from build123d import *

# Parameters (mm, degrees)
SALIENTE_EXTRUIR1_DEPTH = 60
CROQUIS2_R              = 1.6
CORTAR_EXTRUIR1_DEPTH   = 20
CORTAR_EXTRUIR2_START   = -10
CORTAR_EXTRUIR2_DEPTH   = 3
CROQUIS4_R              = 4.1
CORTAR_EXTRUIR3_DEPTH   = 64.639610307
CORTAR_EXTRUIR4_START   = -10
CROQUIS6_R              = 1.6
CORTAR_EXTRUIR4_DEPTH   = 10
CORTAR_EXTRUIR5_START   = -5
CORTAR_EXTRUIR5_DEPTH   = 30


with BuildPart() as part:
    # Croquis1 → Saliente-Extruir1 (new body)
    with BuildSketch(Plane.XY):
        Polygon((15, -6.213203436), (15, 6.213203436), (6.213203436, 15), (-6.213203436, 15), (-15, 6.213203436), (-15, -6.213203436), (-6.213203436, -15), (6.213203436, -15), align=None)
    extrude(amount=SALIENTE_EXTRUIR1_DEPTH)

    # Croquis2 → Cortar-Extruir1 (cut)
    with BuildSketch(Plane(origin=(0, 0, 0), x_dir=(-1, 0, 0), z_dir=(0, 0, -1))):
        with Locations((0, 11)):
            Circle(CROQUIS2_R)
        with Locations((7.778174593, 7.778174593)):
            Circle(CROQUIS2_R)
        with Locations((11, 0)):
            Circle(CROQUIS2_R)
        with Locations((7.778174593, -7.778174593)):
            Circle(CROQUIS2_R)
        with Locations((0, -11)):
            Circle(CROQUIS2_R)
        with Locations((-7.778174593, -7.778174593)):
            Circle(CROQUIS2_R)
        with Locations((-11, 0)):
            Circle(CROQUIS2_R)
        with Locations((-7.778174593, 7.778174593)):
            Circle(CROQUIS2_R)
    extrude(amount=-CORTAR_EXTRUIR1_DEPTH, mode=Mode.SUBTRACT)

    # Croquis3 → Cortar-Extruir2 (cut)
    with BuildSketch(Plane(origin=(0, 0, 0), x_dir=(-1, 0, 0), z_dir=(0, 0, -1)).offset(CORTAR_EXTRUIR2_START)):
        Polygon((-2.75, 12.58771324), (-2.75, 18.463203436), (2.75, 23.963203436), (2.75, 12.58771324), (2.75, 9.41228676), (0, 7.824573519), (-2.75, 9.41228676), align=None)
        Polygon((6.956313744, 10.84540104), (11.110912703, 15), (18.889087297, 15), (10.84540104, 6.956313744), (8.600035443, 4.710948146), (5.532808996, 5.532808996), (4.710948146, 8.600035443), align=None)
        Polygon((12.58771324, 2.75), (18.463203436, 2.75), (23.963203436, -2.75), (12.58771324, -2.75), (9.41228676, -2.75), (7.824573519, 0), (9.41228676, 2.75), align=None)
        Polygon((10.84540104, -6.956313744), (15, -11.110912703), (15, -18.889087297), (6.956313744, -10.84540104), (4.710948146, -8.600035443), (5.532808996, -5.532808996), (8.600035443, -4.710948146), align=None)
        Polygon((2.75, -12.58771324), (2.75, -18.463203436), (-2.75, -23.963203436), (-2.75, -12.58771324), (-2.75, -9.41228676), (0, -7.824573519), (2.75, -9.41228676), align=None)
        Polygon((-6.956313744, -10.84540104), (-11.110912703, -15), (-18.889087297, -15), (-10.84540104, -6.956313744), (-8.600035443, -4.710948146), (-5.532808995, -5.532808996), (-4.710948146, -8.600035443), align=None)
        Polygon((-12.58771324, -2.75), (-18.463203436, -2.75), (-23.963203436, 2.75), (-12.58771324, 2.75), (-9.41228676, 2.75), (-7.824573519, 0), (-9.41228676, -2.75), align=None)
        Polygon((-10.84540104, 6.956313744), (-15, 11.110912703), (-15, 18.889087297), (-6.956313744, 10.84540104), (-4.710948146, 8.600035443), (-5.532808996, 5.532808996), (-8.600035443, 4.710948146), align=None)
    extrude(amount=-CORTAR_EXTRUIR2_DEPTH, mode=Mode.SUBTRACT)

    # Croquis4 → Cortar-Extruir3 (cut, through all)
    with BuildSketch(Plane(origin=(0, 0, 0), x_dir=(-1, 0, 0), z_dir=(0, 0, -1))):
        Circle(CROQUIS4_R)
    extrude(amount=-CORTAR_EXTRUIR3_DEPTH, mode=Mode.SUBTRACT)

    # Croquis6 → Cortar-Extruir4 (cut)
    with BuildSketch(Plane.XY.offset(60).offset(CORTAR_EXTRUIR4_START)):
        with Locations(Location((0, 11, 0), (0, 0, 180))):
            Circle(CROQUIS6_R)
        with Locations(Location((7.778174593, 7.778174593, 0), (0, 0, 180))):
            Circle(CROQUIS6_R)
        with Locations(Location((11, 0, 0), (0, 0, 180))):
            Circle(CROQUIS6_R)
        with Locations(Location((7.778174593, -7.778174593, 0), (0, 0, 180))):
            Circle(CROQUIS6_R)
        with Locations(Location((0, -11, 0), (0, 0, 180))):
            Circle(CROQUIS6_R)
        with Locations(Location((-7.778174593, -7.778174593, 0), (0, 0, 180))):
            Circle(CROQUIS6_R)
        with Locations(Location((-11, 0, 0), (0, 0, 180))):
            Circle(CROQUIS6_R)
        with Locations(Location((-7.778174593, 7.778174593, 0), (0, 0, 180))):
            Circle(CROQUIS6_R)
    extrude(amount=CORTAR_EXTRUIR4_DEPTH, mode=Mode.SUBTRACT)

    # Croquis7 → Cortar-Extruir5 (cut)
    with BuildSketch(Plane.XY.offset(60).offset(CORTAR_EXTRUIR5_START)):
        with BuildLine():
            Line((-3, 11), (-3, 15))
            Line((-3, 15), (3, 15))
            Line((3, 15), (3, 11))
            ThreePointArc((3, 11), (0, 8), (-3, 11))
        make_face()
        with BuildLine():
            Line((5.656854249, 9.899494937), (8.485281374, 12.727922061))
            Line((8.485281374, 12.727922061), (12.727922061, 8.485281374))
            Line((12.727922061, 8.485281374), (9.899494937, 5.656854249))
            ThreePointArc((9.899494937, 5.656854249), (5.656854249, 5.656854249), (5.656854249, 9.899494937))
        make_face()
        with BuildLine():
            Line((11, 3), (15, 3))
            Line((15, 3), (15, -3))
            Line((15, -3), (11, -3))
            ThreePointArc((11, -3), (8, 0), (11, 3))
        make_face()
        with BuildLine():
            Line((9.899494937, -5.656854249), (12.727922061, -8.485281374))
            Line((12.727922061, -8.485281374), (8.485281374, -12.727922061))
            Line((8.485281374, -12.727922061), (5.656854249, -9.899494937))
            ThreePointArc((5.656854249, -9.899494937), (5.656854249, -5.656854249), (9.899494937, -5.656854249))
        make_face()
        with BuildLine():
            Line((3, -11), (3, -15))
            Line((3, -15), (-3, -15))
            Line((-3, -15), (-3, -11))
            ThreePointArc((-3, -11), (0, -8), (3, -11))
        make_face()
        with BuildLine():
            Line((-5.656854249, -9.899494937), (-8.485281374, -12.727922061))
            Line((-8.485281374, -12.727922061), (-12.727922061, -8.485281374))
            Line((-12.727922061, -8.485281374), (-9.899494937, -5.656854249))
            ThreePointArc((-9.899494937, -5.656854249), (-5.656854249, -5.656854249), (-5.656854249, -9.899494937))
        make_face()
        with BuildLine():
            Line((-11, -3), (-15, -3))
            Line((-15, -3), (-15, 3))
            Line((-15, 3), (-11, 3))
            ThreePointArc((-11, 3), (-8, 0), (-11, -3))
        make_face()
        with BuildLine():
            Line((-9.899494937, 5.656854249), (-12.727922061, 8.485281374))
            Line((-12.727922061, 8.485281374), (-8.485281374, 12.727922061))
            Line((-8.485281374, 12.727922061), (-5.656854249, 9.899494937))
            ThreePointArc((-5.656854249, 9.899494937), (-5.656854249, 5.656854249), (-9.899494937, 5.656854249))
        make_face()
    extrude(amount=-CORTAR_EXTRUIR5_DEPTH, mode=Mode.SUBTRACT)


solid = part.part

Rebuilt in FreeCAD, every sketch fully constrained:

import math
import FreeCAD as App
import Part
import Sketcher
Q = App.Units.Quantity

doc = App.newDocument("Part")
body = doc.addObject("PartDesign::Body", "Body")

sketch1 = doc.addObject("Sketcher::SketchObject", "Sketch")
body.addObject(sketch1)
sketch1.AttachmentSupport = (doc.XY_Plane, [""])
sketch1.MapMode = "FlatFace"
sketch1.addGeometry([
    Part.LineSegment(App.Vector(15, -6.213203, 0), App.Vector(15, 6.213203, 0)),
    Part.LineSegment(App.Vector(15, 6.213203, 0), App.Vector(6.213203, 15, 0)),
    Part.LineSegment(App.Vector(6.213203, 15, 0), App.Vector(-6.213203, 15, 0)),
    Part.LineSegment(App.Vector(-6.213203, 15, 0), App.Vector(-15, 6.213203, 0)),
    Part.LineSegment(App.Vector(-15, 6.213203, 0), App.Vector(-15, -6.213203, 0)),
    Part.LineSegment(App.Vector(-15, -6.213203, 0), App.Vector(-6.213203, -15, 0)),
    Part.LineSegment(App.Vector(-6.213203, -15, 0), App.Vector(6.213203, -15, 0)),
    Part.LineSegment(App.Vector(6.213203, -15, 0), App.Vector(15, -6.213203, 0)),
], False)
sketch1.addConstraint([
    Sketcher.Constraint("Coincident", 0, 2, 1, 1),
    Sketcher.Constraint("Coincident", 1, 2, 2, 1),
    Sketcher.Constraint("Coincident", 2, 2, 3, 1),
    Sketcher.Constraint("Coincident", 3, 2, 4, 1),
    Sketcher.Constraint("Coincident", 4, 2, 5, 1),
    Sketcher.Constraint("Coincident", 5, 2, 6, 1),
    Sketcher.Constraint("Coincident", 6, 2, 7, 1),
    Sketcher.Constraint("Coincident", 7, 2, 0, 1),
    Sketcher.Constraint("Vertical", 0),
    Sketcher.Constraint("Horizontal", 2),
    Sketcher.Constraint("Vertical", 4),
    Sketcher.Constraint("Horizontal", 6),
    Sketcher.Constraint("Symmetric", 0, 2, 4, 2, -1, 1),
    Sketcher.Constraint("Symmetric", 1, 2, 5, 2, -1, 1),
    Sketcher.Constraint("Perpendicular", 1, 3),
    Sketcher.Constraint("Perpendicular", 5, 7),
    Sketcher.Constraint("Horizontal", 0, 2, 3, 2),
    Sketcher.Constraint("Horizontal", 4, 2, 7, 2),
    Sketcher.Constraint("Vertical", 2, 2, 5, 2),
    Sketcher.Constraint("Equal", 6, 0),
    Sketcher.Constraint("DistanceX", -1, 1, 0, 2, Q("15 mm")),
    Sketcher.Constraint("DistanceX", 2, 2, 2, 1, Q("12.426407 mm")),
])
pad1 = doc.addObject("PartDesign::Pad", "Pad")
body.addObject(pad1)
pad1.Profile = sketch1
pad1.Length = 60

sketch2 = doc.addObject("Sketcher::SketchObject", "Sketch001")
body.addObject(sketch2)
sketch2.AttachmentSupport = (doc.XY_Plane, [""])
sketch2.MapMode = "FlatFace"
sketch2.addGeometry([
    Part.Circle(App.Vector(0, 11, 0), App.Vector(0, 0, 1), 1.6),
    Part.Circle(App.Vector(-7.778175, 7.778175, 0), App.Vector(0, 0, 1), 1.6),
    Part.Circle(App.Vector(-11, 0, 0), App.Vector(0, 0, 1), 1.6),
    Part.Circle(App.Vector(-7.778175, -7.778175, 0), App.Vector(0, 0, 1), 1.6),
    Part.Circle(App.Vector(0, -11, 0), App.Vector(0, 0, 1), 1.6),
    Part.Circle(App.Vector(7.778175, -7.778175, 0), App.Vector(0, 0, 1), 1.6),
    Part.Circle(App.Vector(11, 0, 0), App.Vector(0, 0, 1), 1.6),
    Part.Circle(App.Vector(7.778175, 7.778175, 0), App.Vector(0, 0, 1), 1.6),
], False)
sketch2.addConstraint([
    Sketcher.Constraint("Equal", 0, 1),
    Sketcher.Constraint("Equal", 1, 2),
    Sketcher.Constraint("Equal", 2, 3),
    Sketcher.Constraint("Equal", 3, 4),
    Sketcher.Constraint("Equal", 4, 5),
    Sketcher.Constraint("Equal", 5, 6),
    Sketcher.Constraint("Equal", 6, 7),
    Sketcher.Constraint("Symmetric", 0, 3, 4, 3, -1, 1),
    Sketcher.Constraint("Symmetric", 1, 3, 5, 3, -1, 1),
    Sketcher.Constraint("Symmetric", 2, 3, 6, 3, -1, 1),
    Sketcher.Constraint("Symmetric", 3, 3, 7, 3, -1, 1),
    Sketcher.Constraint("Symmetric", 3, 3, 5, 3, -2),
    Sketcher.Constraint("PointOnObject", 0, 3, -2),
    Sketcher.Constraint("PointOnObject", 2, 3, -1),
    Sketcher.Constraint("Diameter", 0, Q("3.2 mm")),
    Sketcher.Constraint("DistanceY", -1, 1, 0, 3, Q("11 mm")),
    Sketcher.Constraint("DistanceX", 2, 3, -1, 1, Q("11 mm")),
    Sketcher.Constraint("DistanceY", 3, 3, 1, 3, Q("15.556349 mm")),
    Sketcher.Constraint("DistanceX", 3, 3, 5, 3, Q("15.556349 mm")),
])
pocket1 = doc.addObject("PartDesign::Pocket", "Pocket")
body.addObject(pocket1)
pocket1.Profile = sketch2
pocket1.Length = 20
pocket1.Reversed = True

sketch3 = doc.addObject("Sketcher::SketchObject", "Sketch002")
body.addObject(sketch3)
sketch3.AttachmentSupport = (doc.XY_Plane, [""])
sketch3.MapMode = "FlatFace"
sketch3.AttachmentOffset = App.Placement(App.Vector(0, 0, 10), App.Rotation())
sketch3.addGeometry([
    Part.LineSegment(App.Vector(2.75, 18.463203, 0), App.Vector(2.75, 9.412287, 0)),
    Part.LineSegment(App.Vector(2.75, 9.412287, 0), App.Vector(0, 7.824574, 0)),
    Part.LineSegment(App.Vector(0, 7.824574, 0), App.Vector(-2.75, 9.412287, 0)),
    Part.LineSegment(App.Vector(-2.75, 9.412287, 0), App.Vector(-2.75, 23.963203, 0)),
    Part.LineSegment(App.Vector(-2.75, 23.963203, 0), App.Vector(2.75, 18.463203, 0)),
    Part.LineSegment(App.Vector(-11.110913, 15, 0), App.Vector(-6.956314, 10.845401, 0)),
    Part.LineSegment(App.Vector(-6.956314, 10.845401, 0), App.Vector(-4.710948, 8.600035, 0)),
    Part.LineSegment(App.Vector(-4.710948, 8.600035, 0), App.Vector(-5.532809, 5.532809, 0)),
    Part.LineSegment(App.Vector(-5.532809, 5.532809, 0), App.Vector(-8.600035, 4.710948, 0)),
    Part.LineSegment(App.Vector(-8.600035, 4.710948, 0), App.Vector(-10.845401, 6.956314, 0)),
    Part.LineSegment(App.Vector(-10.845401, 6.956314, 0), App.Vector(-18.889087, 15, 0)),
    Part.LineSegment(App.Vector(-18.889087, 15, 0), App.Vector(-11.110913, 15, 0)),
    Part.LineSegment(App.Vector(-18.463203, 2.75, 0), App.Vector(-9.412287, 2.75, 0)),
    Part.LineSegment(App.Vector(-9.412287, 2.75, 0), App.Vector(-7.824574, 0, 0)),
    Part.LineSegment(App.Vector(-7.824574, 0, 0), App.Vector(-9.412287, -2.75, 0)),
    Part.LineSegment(App.Vector(-9.412287, -2.75, 0), App.Vector(-23.963203, -2.75, 0)),
    Part.LineSegment(App.Vector(-23.963203, -2.75, 0), App.Vector(-18.463203, 2.75, 0)),
    Part.LineSegment(App.Vector(-15, -11.110913, 0), App.Vector(-10.845401, -6.956314, 0)),
    Part.LineSegment(App.Vector(-10.845401, -6.956314, 0), App.Vector(-8.600035, -4.710948, 0)),
    Part.LineSegment(App.Vector(-8.600035, -4.710948, 0), App.Vector(-5.532809, -5.532809, 0)),
    Part.LineSegment(App.Vector(-5.532809, -5.532809, 0), App.Vector(-4.710948, -8.600035, 0)),
    Part.LineSegment(App.Vector(-4.710948, -8.600035, 0), App.Vector(-6.956314, -10.845401, 0)),
    Part.LineSegment(App.Vector(-6.956314, -10.845401, 0), App.Vector(-15, -18.889087, 0)),
    Part.LineSegment(App.Vector(-15, -18.889087, 0), App.Vector(-15, -11.110913, 0)),
    Part.LineSegment(App.Vector(-2.75, -18.463203, 0), App.Vector(-2.75, -9.412287, 0)),
    Part.LineSegment(App.Vector(-2.75, -9.412287, 0), App.Vector(0, -7.824574, 0)),
    Part.LineSegment(App.Vector(0, -7.824574, 0), App.Vector(2.75, -9.412287, 0)),
    Part.LineSegment(App.Vector(2.75, -9.412287, 0), App.Vector(2.75, -23.963203, 0)),
    Part.LineSegment(App.Vector(2.75, -23.963203, 0), App.Vector(-2.75, -18.463203, 0)),
    Part.LineSegment(App.Vector(11.110913, -15, 0), App.Vector(6.956314, -10.845401, 0)),
    Part.LineSegment(App.Vector(6.956314, -10.845401, 0), App.Vector(4.710948, -8.600035, 0)),
    Part.LineSegment(App.Vector(4.710948, -8.600035, 0), App.Vector(5.532809, -5.532809, 0)),
    Part.LineSegment(App.Vector(5.532809, -5.532809, 0), App.Vector(8.600035, -4.710948, 0)),
    Part.LineSegment(App.Vector(8.600035, -4.710948, 0), App.Vector(10.845401, -6.956314, 0)),
    Part.LineSegment(App.Vector(10.845401, -6.956314, 0), App.Vector(18.889087, -15, 0)),
    Part.LineSegment(App.Vector(18.889087, -15, 0), App.Vector(11.110913, -15, 0)),
    Part.LineSegment(App.Vector(18.463203, -2.75, 0), App.Vector(9.412287, -2.75, 0)),
    Part.LineSegment(App.Vector(9.412287, -2.75, 0), App.Vector(7.824574, 0, 0)),
    Part.LineSegment(App.Vector(7.824574, 0, 0), App.Vector(9.412287, 2.75, 0)),
    Part.LineSegment(App.Vector(9.412287, 2.75, 0), App.Vector(23.963203, 2.75, 0)),
    Part.LineSegment(App.Vector(23.963203, 2.75, 0), App.Vector(18.463203, -2.75, 0)),
    Part.LineSegment(App.Vector(15, 11.110913, 0), App.Vector(10.845401, 6.956314, 0)),
    Part.LineSegment(App.Vector(10.845401, 6.956314, 0), App.Vector(8.600035, 4.710948, 0)),
    Part.LineSegment(App.Vector(8.600035, 4.710948, 0), App.Vector(5.532809, 5.532809, 0)),
    Part.LineSegment(App.Vector(5.532809, 5.532809, 0), App.Vector(4.710948, 8.600035, 0)),
    Part.LineSegment(App.Vector(4.710948, 8.600035, 0), App.Vector(6.956314, 10.845401, 0)),
    Part.LineSegment(App.Vector(6.956314, 10.845401, 0), App.Vector(15, 18.889087, 0)),
    Part.LineSegment(App.Vector(15, 18.889087, 0), App.Vector(15, 11.110913, 0)),
], False)
sketch3.addConstraint([
    Sketcher.Constraint("Coincident", 0, 2, 1, 1),
    Sketcher.Constraint("Coincident", 1, 2, 2, 1),
    Sketcher.Constraint("Coincident", 2, 2, 3, 1),
    Sketcher.Constraint("Coincident", 3, 2, 4, 1),
    Sketcher.Constraint("Coincident", 4, 2, 0, 1),
    Sketcher.Constraint("Coincident", 5, 2, 6, 1),
    Sketcher.Constraint("Coincident", 6, 2, 7, 1),
    Sketcher.Constraint("Coincident", 7, 2, 8, 1),
    Sketcher.Constraint("Coincident", 8, 2, 9, 1),
    Sketcher.Constraint("Coincident", 9, 2, 10, 1),
    Sketcher.Constraint("Coincident", 10, 2, 11, 1),
    Sketcher.Constraint("Coincident", 11, 2, 5, 1),
    Sketcher.Constraint("Coincident", 12, 2, 13, 1),
    Sketcher.Constraint("Coincident", 13, 2, 14, 1),
    Sketcher.Constraint("Coincident", 14, 2, 15, 1),
    Sketcher.Constraint("Coincident", 15, 2, 16, 1),
    Sketcher.Constraint("Coincident", 16, 2, 12, 1),
    Sketcher.Constraint("Coincident", 17, 2, 18, 1),
    Sketcher.Constraint("Coincident", 18, 2, 19, 1),
    Sketcher.Constraint("Coincident", 19, 2, 20, 1),
    Sketcher.Constraint("Coincident", 20, 2, 21, 1),
    Sketcher.Constraint("Coincident", 21, 2, 22, 1),
    Sketcher.Constraint("Coincident", 22, 2, 23, 1),
    Sketcher.Constraint("Coincident", 23, 2, 17, 1),
    Sketcher.Constraint("Coincident", 24, 2, 25, 1),
    Sketcher.Constraint("Coincident", 25, 2, 26, 1),
    Sketcher.Constraint("Coincident", 26, 2, 27, 1),
    Sketcher.Constraint("Coincident", 27, 2, 28, 1),
    Sketcher.Constraint("Coincident", 28, 2, 24, 1),
    Sketcher.Constraint("Coincident", 29, 2, 30, 1),
    Sketcher.Constraint("Coincident", 30, 2, 31, 1),
    Sketcher.Constraint("Coincident", 31, 2, 32, 1),
    Sketcher.Constraint("Coincident", 32, 2, 33, 1),
    Sketcher.Constraint("Coincident", 33, 2, 34, 1),
    Sketcher.Constraint("Coincident", 34, 2, 35, 1),
    Sketcher.Constraint("Coincident", 35, 2, 29, 1),
    Sketcher.Constraint("Coincident", 36, 2, 37, 1),
    Sketcher.Constraint("Coincident", 37, 2, 38, 1),
    Sketcher.Constraint("Coincident", 38, 2, 39, 1),
    Sketcher.Constraint("Coincident", 39, 2, 40, 1),
    Sketcher.Constraint("Coincident", 40, 2, 36, 1),
    Sketcher.Constraint("Coincident", 41, 2, 42, 1),
    Sketcher.Constraint("Coincident", 42, 2, 43, 1),
    Sketcher.Constraint("Coincident", 43, 2, 44, 1),
    Sketcher.Constraint("Coincident", 44, 2, 45, 1),
    Sketcher.Constraint("Coincident", 45, 2, 46, 1),
    Sketcher.Constraint("Coincident", 46, 2, 47, 1),
    Sketcher.Constraint("Coincident", 47, 2, 41, 1),
    Sketcher.Constraint("Vertical", 0),
    Sketcher.Constraint("Vertical", 3),
    Sketcher.Constraint("Horizontal", 11),
    Sketcher.Constraint("Horizontal", 12),
    Sketcher.Constraint("Horizontal", 15),
    Sketcher.Constraint("Vertical", 23),
    Sketcher.Constraint("Vertical", 24),
    Sketcher.Constraint("Vertical", 27),
    Sketcher.Constraint("Horizontal", 35),
    Sketcher.Constraint("Horizontal", 36),
    Sketcher.Constraint("Horizontal", 39),
    Sketcher.Constraint("Vertical", 47),
    Sketcher.Constraint("Symmetric", 0, 2, 24, 2, -1, 1),
    Sketcher.Constraint("Symmetric", 1, 2, 25, 2, -1, 1),
    Sketcher.Constraint("Symmetric", 2, 2, 26, 2, -1, 1),
    Sketcher.Constraint("Symmetric", 5, 2, 29, 2, -1, 1),
    Sketcher.Constraint("Symmetric", 6, 2, 30, 2, -1, 1),
    Sketcher.Constraint("Symmetric", 7, 2, 31, 2, -1, 1),
    Sketcher.Constraint("Symmetric", 8, 2, 32, 2, -1, 1),
    Sketcher.Constraint("Symmetric", 9, 2, 33, 2, -1, 1),
    Sketcher.Constraint("Symmetric", 10, 2, 34, 2, -1, 1),
    Sketcher.Constraint("Symmetric", 12, 2, 36, 2, -1, 1),
    Sketcher.Constraint("Symmetric", 13, 2, 37, 2, -1, 1),
    Sketcher.Constraint("Symmetric", 14, 2, 38, 2, -1, 1),
    Sketcher.Constraint("Symmetric", 17, 2, 41, 2, -1, 1),
    Sketcher.Constraint("Symmetric", 18, 2, 42, 2, -1, 1),
    Sketcher.Constraint("Symmetric", 19, 2, 43, 2, -1, 1),
    Sketcher.Constraint("Symmetric", 20, 2, 44, 2, -1, 1),
    Sketcher.Constraint("Symmetric", 21, 2, 45, 2, -1, 1),
    Sketcher.Constraint("Symmetric", 22, 2, 46, 2, -1, 1),
    Sketcher.Constraint("Symmetric", 0, 2, 2, 2, -2),
    Sketcher.Constraint("Symmetric", 21, 2, 29, 2, -2),
    Sketcher.Constraint("Symmetric", 20, 2, 30, 2, -2),
    Sketcher.Constraint("Symmetric", 19, 2, 31, 2, -2),
    Sketcher.Constraint("Symmetric", 18, 2, 32, 2, -2),
    Sketcher.Constraint("Symmetric", 17, 2, 33, 2, -2),
    Sketcher.Constraint("Symmetric", 14, 2, 36, 2, -2),
    Sketcher.Constraint("PointOnObject", 1, 2, -2),
    Sketcher.Constraint("PointOnObject", 13, 2, -1),
    Sketcher.Constraint("Parallel", 4, 5),
    Sketcher.Constraint("Parallel", 5, 6),
    Sketcher.Constraint("Parallel", 6, 9),
    Sketcher.Constraint("Parallel", 9, 10),
    Sketcher.Constraint("Perpendicular", 1, 13),
    Sketcher.Constraint("Perpendicular", 10, 16),
    Sketcher.Constraint("Parallel", 16, 17),
    Sketcher.Constraint("Parallel", 17, 18),
    Sketcher.Constraint("Perpendicular", 7, 19),
    Sketcher.Constraint("Parallel", 21, 22),
    Sketcher.Constraint("Perpendicular", 22, 28),
    Sketcher.Constraint("Parallel", 28, 29),
    Sketcher.Constraint("Perpendicular", 34, 40),
    Sketcher.Constraint("Parallel", 40, 41),
    Sketcher.Constraint("Equal", 12, 36),
    Sketcher.Constraint("Equal", 36, 0),
    Sketcher.Constraint("Equal", 39, 3),
    Sketcher.Constraint("Equal", 0, 24),
    Sketcher.Constraint("Equal", 2, 6),
    Sketcher.Constraint("Equal", 6, 7),
    Sketcher.Constraint("Equal", 7, 8),
    Sketcher.Constraint("Equal", 8, 9),
    Sketcher.Constraint("Equal", 5, 17),
    Sketcher.Constraint("Angle", 1, Q("-150 deg")),
    Sketcher.Constraint("Angle", 7, Q("-105 deg")),
    Sketcher.Constraint("DistanceY", -1, 1, 10, 2, Q("15 mm")),
    Sketcher.Constraint("DistanceX", 22, 2, -1, 1, Q("15 mm")),
    Sketcher.Constraint("DistanceX", 2, 2, 0, 2, Q("5.5 mm")),
    Sketcher.Constraint("DistanceY", -1, 1, 5, 2, Q("10.845401 mm")),
    Sketcher.Constraint("DistanceY", 0, 2, 46, 2, Q("9.476801 mm")),
    Sketcher.Constraint("DistanceX", 12, 1, 12, 2, Q("9.050917 mm")),
    Sketcher.Constraint("DistanceX", 12, 2, 8, 2, Q("0.812251 mm")),
])
pocket2 = doc.addObject("PartDesign::Pocket", "Pocket001")
body.addObject(pocket2)
pocket2.Profile = sketch3
pocket2.Length = 3
pocket2.Reversed = True

sketch4 = doc.addObject("Sketcher::SketchObject", "Sketch003")
body.addObject(sketch4)
sketch4.AttachmentSupport = (doc.XY_Plane, [""])
sketch4.MapMode = "FlatFace"
sketch4.addGeometry(Part.Circle(App.Vector(0, 0, 0), App.Vector(0, 0, 1), 4.1), False)
sketch4.addConstraint([
    Sketcher.Constraint("Coincident", 0, 3, -1, 1),
    Sketcher.Constraint("Diameter", 0, Q("8.2 mm")),
])
pocket3 = doc.addObject("PartDesign::Pocket", "Pocket002")
body.addObject(pocket3)
pocket3.Profile = sketch4
pocket3.Type = "ThroughAll"
pocket3.Reversed = True

sketch5 = doc.addObject("Sketcher::SketchObject", "Sketch004")
body.addObject(sketch5)
sketch5.AttachmentSupport = (doc.XY_Plane, [""])
sketch5.MapMode = "FlatFace"
sketch5.AttachmentOffset = App.Placement(App.Vector(0, 0, 50), App.Rotation())
sketch5.addGeometry([
    Part.Circle(App.Vector(0, 11, 0), App.Vector(0, 0, 1), 1.6),
    Part.Circle(App.Vector(7.778175, 7.778175, 0), App.Vector(0, 0, 1), 1.6),
    Part.Circle(App.Vector(11, 0, 0), App.Vector(0, 0, 1), 1.6),
    Part.Circle(App.Vector(7.778175, -7.778175, 0), App.Vector(0, 0, 1), 1.6),
    Part.Circle(App.Vector(0, -11, 0), App.Vector(0, 0, 1), 1.6),
    Part.Circle(App.Vector(-7.778175, -7.778175, 0), App.Vector(0, 0, 1), 1.6),
    Part.Circle(App.Vector(-11, 0, 0), App.Vector(0, 0, 1), 1.6),
    Part.Circle(App.Vector(-7.778175, 7.778175, 0), App.Vector(0, 0, 1), 1.6),
], False)
sketch5.addConstraint([
    Sketcher.Constraint("Equal", 0, 1),
    Sketcher.Constraint("Equal", 1, 2),
    Sketcher.Constraint("Equal", 2, 3),
    Sketcher.Constraint("Equal", 3, 4),
    Sketcher.Constraint("Equal", 4, 5),
    Sketcher.Constraint("Equal", 5, 6),
    Sketcher.Constraint("Equal", 6, 7),
    Sketcher.Constraint("Symmetric", 0, 3, 4, 3, -1, 1),
    Sketcher.Constraint("Symmetric", 1, 3, 5, 3, -1, 1),
    Sketcher.Constraint("Symmetric", 2, 3, 6, 3, -1, 1),
    Sketcher.Constraint("Symmetric", 3, 3, 7, 3, -1, 1),
    Sketcher.Constraint("Symmetric", 3, 3, 5, 3, -2),
    Sketcher.Constraint("PointOnObject", 0, 3, -2),
    Sketcher.Constraint("PointOnObject", 2, 3, -1),
    Sketcher.Constraint("Diameter", 0, Q("3.2 mm")),
    Sketcher.Constraint("DistanceY", -1, 1, 0, 3, Q("11 mm")),
    Sketcher.Constraint("DistanceX", -1, 1, 2, 3, Q("11 mm")),
    Sketcher.Constraint("DistanceY", 3, 3, 1, 3, Q("15.556349 mm")),
    Sketcher.Constraint("DistanceX", 5, 3, 3, 3, Q("15.556349 mm")),
])
pocket4 = doc.addObject("PartDesign::Pocket", "Pocket003")
body.addObject(pocket4)
pocket4.Profile = sketch5
pocket4.Length = 10
pocket4.Reversed = True

sketch6 = doc.addObject("Sketcher::SketchObject", "Sketch005")
body.addObject(sketch6)
sketch6.AttachmentSupport = (doc.XY_Plane, [""])
sketch6.MapMode = "FlatFace"
sketch6.AttachmentOffset = App.Placement(App.Vector(0, 0, 55), App.Rotation())
sketch6.addGeometry([
    Part.LineSegment(App.Vector(-3, 15, 0), App.Vector(-3, 11, 0)),
    Part.ArcOfCircle(Part.Circle(App.Vector(0, 11, 0), App.Vector(0, 0, 1), 3), math.radians(180), math.radians(360)),
    Part.LineSegment(App.Vector(3, 11, 0), App.Vector(3, 15, 0)),
    Part.LineSegment(App.Vector(3, 15, 0), App.Vector(-3, 15, 0)),
    Part.LineSegment(App.Vector(8.485281, 12.727922, 0), App.Vector(5.656854, 9.899495, 0)),
    Part.ArcOfCircle(Part.Circle(App.Vector(7.778175, 7.778175, 0), App.Vector(0, 0, 1), 3), math.radians(135), math.radians(315)),
    Part.LineSegment(App.Vector(9.899495, 5.656854, 0), App.Vector(12.727922, 8.485281, 0)),
    Part.LineSegment(App.Vector(12.727922, 8.485281, 0), App.Vector(8.485281, 12.727922, 0)),
    Part.LineSegment(App.Vector(15, 3, 0), App.Vector(11, 3, 0)),
    Part.ArcOfCircle(Part.Circle(App.Vector(11, 0, 0), App.Vector(0, 0, 1), 3), math.radians(90), math.radians(270)),
    Part.LineSegment(App.Vector(11, -3, 0), App.Vector(15, -3, 0)),
    Part.LineSegment(App.Vector(15, -3, 0), App.Vector(15, 3, 0)),
    Part.LineSegment(App.Vector(12.727922, -8.485281, 0), App.Vector(9.899495, -5.656854, 0)),
    Part.ArcOfCircle(Part.Circle(App.Vector(7.778175, -7.778175, 0), App.Vector(0, 0, 1), 3), math.radians(45), math.radians(225)),
    Part.LineSegment(App.Vector(5.656854, -9.899495, 0), App.Vector(8.485281, -12.727922, 0)),
    Part.LineSegment(App.Vector(8.485281, -12.727922, 0), App.Vector(12.727922, -8.485281, 0)),
    Part.LineSegment(App.Vector(3, -15, 0), App.Vector(3, -11, 0)),
    Part.ArcOfCircle(Part.Circle(App.Vector(0, -11, 0), App.Vector(0, 0, 1), 3), math.radians(0), math.radians(180)),
    Part.LineSegment(App.Vector(-3, -11, 0), App.Vector(-3, -15, 0)),
    Part.LineSegment(App.Vector(-3, -15, 0), App.Vector(3, -15, 0)),
    Part.LineSegment(App.Vector(-8.485281, -12.727922, 0), App.Vector(-5.656854, -9.899495, 0)),
    Part.ArcOfCircle(Part.Circle(App.Vector(-7.778175, -7.778175, 0), App.Vector(0, 0, 1), 3), math.radians(-45), math.radians(135)),
    Part.LineSegment(App.Vector(-9.899495, -5.656854, 0), App.Vector(-12.727922, -8.485281, 0)),
    Part.LineSegment(App.Vector(-12.727922, -8.485281, 0), App.Vector(-8.485281, -12.727922, 0)),
    Part.LineSegment(App.Vector(-15, -3, 0), App.Vector(-11, -3, 0)),
    Part.ArcOfCircle(Part.Circle(App.Vector(-11, 0, 0), App.Vector(0, 0, 1), 3), math.radians(-90), math.radians(90)),
    Part.LineSegment(App.Vector(-11, 3, 0), App.Vector(-15, 3, 0)),
    Part.LineSegment(App.Vector(-15, 3, 0), App.Vector(-15, -3, 0)),
    Part.LineSegment(App.Vector(-12.727922, 8.485281, 0), App.Vector(-9.899495, 5.656854, 0)),
    Part.ArcOfCircle(Part.Circle(App.Vector(-7.778175, 7.778175, 0), App.Vector(0, 0, 1), 3), math.radians(-135), math.radians(45)),
    Part.LineSegment(App.Vector(-5.656854, 9.899495, 0), App.Vector(-8.485281, 12.727922, 0)),
    Part.LineSegment(App.Vector(-8.485281, 12.727922, 0), App.Vector(-12.727922, 8.485281, 0)),
], False)
sketch6.addConstraint([
    Sketcher.Constraint("Tangent", 0, 2, 1, 1),
    Sketcher.Constraint("Tangent", 1, 2, 2, 1),
    Sketcher.Constraint("Coincident", 2, 2, 3, 1),
    Sketcher.Constraint("Coincident", 3, 2, 0, 1),
    Sketcher.Constraint("Tangent", 4, 2, 5, 1),
    Sketcher.Constraint("Tangent", 5, 2, 6, 1),
    Sketcher.Constraint("Coincident", 6, 2, 7, 1),
    Sketcher.Constraint("Coincident", 7, 2, 4, 1),
    Sketcher.Constraint("Tangent", 8, 2, 9, 1),
    Sketcher.Constraint("Tangent", 9, 2, 10, 1),
    Sketcher.Constraint("Coincident", 10, 2, 11, 1),
    Sketcher.Constraint("Coincident", 11, 2, 8, 1),
    Sketcher.Constraint("Tangent", 12, 2, 13, 1),
    Sketcher.Constraint("Tangent", 13, 2, 14, 1),
    Sketcher.Constraint("Coincident", 14, 2, 15, 1),
    Sketcher.Constraint("Coincident", 15, 2, 12, 1),
    Sketcher.Constraint("Tangent", 16, 2, 17, 1),
    Sketcher.Constraint("Tangent", 17, 2, 18, 1),
    Sketcher.Constraint("Coincident", 18, 2, 19, 1),
    Sketcher.Constraint("Coincident", 19, 2, 16, 1),
    Sketcher.Constraint("Tangent", 20, 2, 21, 1),
    Sketcher.Constraint("Tangent", 21, 2, 22, 1),
    Sketcher.Constraint("Coincident", 22, 2, 23, 1),
    Sketcher.Constraint("Coincident", 23, 2, 20, 1),
    Sketcher.Constraint("Tangent", 24, 2, 25, 1),
    Sketcher.Constraint("Tangent", 25, 2, 26, 1),
    Sketcher.Constraint("Coincident", 26, 2, 27, 1),
    Sketcher.Constraint("Coincident", 27, 2, 24, 1),
    Sketcher.Constraint("Tangent", 28, 2, 29, 1),
    Sketcher.Constraint("Tangent", 29, 2, 30, 1),
    Sketcher.Constraint("Coincident", 30, 2, 31, 1),
    Sketcher.Constraint("Coincident", 31, 2, 28, 1),
    Sketcher.Constraint("Vertical", 0),
    Sketcher.Constraint("Vertical", 2),
    Sketcher.Constraint("Horizontal", 3),
    Sketcher.Constraint("Horizontal", 8),
    Sketcher.Constraint("Horizontal", 10),
    Sketcher.Constraint("Vertical", 11),
    Sketcher.Constraint("Vertical", 16),
    Sketcher.Constraint("Vertical", 18),
    Sketcher.Constraint("Horizontal", 19),
    Sketcher.Constraint("Horizontal", 24),
    Sketcher.Constraint("Horizontal", 26),
    Sketcher.Constraint("Vertical", 27),
    Sketcher.Constraint("Equal", 1, 5),
    Sketcher.Constraint("Equal", 5, 9),
    Sketcher.Constraint("Equal", 9, 13),
    Sketcher.Constraint("Equal", 13, 17),
    Sketcher.Constraint("Equal", 17, 21),
    Sketcher.Constraint("Equal", 21, 25),
    Sketcher.Constraint("Equal", 25, 29),
    Sketcher.Constraint("Symmetric", 1, 3, 17, 3, -1, 1),
    Sketcher.Constraint("Symmetric", 5, 3, 21, 3, -1, 1),
    Sketcher.Constraint("Symmetric", 9, 3, 25, 3, -1, 1),
    Sketcher.Constraint("Symmetric", 13, 3, 29, 3, -1, 1),
    Sketcher.Constraint("Symmetric", 6, 2, 22, 2, -1, 1),
    Sketcher.Constraint("Symmetric", 7, 2, 23, 2, -1, 1),
    Sketcher.Constraint("Symmetric", 14, 2, 30, 2, -1, 1),
    Sketcher.Constraint("Symmetric", 15, 2, 31, 2, -1, 1),
    Sketcher.Constraint("Symmetric", 13, 3, 21, 3, -2),
    Sketcher.Constraint("Symmetric", 15, 2, 22, 2, -2),
    Sketcher.Constraint("Symmetric", 14, 2, 23, 2, -2),
    Sketcher.Constraint("Symmetric", 11, 2, 26, 2, -2),
    Sketcher.Constraint("Symmetric", 3, 2, 18, 2, -1),
    Sketcher.Constraint("Parallel", 4, 6),
    Sketcher.Constraint("Perpendicular", 6, 7),
    Sketcher.Constraint("Parallel", 7, 12),
    Sketcher.Constraint("Equal", 26, 0),
    Sketcher.Constraint("Radius", 1, Q("3 mm")),
    Sketcher.Constraint("DistanceX", 8, 2, 8, 1, Q("4 mm")),
    Sketcher.Constraint("Distance", 4, Q("4 mm")),
    Sketcher.Constraint("DistanceY", -1, 1, 1, 3, Q("11 mm")),
    Sketcher.Constraint("DistanceX", -1, 1, 9, 3, Q("11 mm")),
    Sketcher.Constraint("DistanceY", -1, 1, 6, 2, Q("8.485281 mm")),
    Sketcher.Constraint("DistanceX", -1, 1, 7, 2, Q("8.485281 mm")),
])
pocket5 = doc.addObject("PartDesign::Pocket", "Pocket004")
body.addObject(pocket5)
pocket5.Profile = sketch6
pocket5.Length = 30

doc.recompute()
